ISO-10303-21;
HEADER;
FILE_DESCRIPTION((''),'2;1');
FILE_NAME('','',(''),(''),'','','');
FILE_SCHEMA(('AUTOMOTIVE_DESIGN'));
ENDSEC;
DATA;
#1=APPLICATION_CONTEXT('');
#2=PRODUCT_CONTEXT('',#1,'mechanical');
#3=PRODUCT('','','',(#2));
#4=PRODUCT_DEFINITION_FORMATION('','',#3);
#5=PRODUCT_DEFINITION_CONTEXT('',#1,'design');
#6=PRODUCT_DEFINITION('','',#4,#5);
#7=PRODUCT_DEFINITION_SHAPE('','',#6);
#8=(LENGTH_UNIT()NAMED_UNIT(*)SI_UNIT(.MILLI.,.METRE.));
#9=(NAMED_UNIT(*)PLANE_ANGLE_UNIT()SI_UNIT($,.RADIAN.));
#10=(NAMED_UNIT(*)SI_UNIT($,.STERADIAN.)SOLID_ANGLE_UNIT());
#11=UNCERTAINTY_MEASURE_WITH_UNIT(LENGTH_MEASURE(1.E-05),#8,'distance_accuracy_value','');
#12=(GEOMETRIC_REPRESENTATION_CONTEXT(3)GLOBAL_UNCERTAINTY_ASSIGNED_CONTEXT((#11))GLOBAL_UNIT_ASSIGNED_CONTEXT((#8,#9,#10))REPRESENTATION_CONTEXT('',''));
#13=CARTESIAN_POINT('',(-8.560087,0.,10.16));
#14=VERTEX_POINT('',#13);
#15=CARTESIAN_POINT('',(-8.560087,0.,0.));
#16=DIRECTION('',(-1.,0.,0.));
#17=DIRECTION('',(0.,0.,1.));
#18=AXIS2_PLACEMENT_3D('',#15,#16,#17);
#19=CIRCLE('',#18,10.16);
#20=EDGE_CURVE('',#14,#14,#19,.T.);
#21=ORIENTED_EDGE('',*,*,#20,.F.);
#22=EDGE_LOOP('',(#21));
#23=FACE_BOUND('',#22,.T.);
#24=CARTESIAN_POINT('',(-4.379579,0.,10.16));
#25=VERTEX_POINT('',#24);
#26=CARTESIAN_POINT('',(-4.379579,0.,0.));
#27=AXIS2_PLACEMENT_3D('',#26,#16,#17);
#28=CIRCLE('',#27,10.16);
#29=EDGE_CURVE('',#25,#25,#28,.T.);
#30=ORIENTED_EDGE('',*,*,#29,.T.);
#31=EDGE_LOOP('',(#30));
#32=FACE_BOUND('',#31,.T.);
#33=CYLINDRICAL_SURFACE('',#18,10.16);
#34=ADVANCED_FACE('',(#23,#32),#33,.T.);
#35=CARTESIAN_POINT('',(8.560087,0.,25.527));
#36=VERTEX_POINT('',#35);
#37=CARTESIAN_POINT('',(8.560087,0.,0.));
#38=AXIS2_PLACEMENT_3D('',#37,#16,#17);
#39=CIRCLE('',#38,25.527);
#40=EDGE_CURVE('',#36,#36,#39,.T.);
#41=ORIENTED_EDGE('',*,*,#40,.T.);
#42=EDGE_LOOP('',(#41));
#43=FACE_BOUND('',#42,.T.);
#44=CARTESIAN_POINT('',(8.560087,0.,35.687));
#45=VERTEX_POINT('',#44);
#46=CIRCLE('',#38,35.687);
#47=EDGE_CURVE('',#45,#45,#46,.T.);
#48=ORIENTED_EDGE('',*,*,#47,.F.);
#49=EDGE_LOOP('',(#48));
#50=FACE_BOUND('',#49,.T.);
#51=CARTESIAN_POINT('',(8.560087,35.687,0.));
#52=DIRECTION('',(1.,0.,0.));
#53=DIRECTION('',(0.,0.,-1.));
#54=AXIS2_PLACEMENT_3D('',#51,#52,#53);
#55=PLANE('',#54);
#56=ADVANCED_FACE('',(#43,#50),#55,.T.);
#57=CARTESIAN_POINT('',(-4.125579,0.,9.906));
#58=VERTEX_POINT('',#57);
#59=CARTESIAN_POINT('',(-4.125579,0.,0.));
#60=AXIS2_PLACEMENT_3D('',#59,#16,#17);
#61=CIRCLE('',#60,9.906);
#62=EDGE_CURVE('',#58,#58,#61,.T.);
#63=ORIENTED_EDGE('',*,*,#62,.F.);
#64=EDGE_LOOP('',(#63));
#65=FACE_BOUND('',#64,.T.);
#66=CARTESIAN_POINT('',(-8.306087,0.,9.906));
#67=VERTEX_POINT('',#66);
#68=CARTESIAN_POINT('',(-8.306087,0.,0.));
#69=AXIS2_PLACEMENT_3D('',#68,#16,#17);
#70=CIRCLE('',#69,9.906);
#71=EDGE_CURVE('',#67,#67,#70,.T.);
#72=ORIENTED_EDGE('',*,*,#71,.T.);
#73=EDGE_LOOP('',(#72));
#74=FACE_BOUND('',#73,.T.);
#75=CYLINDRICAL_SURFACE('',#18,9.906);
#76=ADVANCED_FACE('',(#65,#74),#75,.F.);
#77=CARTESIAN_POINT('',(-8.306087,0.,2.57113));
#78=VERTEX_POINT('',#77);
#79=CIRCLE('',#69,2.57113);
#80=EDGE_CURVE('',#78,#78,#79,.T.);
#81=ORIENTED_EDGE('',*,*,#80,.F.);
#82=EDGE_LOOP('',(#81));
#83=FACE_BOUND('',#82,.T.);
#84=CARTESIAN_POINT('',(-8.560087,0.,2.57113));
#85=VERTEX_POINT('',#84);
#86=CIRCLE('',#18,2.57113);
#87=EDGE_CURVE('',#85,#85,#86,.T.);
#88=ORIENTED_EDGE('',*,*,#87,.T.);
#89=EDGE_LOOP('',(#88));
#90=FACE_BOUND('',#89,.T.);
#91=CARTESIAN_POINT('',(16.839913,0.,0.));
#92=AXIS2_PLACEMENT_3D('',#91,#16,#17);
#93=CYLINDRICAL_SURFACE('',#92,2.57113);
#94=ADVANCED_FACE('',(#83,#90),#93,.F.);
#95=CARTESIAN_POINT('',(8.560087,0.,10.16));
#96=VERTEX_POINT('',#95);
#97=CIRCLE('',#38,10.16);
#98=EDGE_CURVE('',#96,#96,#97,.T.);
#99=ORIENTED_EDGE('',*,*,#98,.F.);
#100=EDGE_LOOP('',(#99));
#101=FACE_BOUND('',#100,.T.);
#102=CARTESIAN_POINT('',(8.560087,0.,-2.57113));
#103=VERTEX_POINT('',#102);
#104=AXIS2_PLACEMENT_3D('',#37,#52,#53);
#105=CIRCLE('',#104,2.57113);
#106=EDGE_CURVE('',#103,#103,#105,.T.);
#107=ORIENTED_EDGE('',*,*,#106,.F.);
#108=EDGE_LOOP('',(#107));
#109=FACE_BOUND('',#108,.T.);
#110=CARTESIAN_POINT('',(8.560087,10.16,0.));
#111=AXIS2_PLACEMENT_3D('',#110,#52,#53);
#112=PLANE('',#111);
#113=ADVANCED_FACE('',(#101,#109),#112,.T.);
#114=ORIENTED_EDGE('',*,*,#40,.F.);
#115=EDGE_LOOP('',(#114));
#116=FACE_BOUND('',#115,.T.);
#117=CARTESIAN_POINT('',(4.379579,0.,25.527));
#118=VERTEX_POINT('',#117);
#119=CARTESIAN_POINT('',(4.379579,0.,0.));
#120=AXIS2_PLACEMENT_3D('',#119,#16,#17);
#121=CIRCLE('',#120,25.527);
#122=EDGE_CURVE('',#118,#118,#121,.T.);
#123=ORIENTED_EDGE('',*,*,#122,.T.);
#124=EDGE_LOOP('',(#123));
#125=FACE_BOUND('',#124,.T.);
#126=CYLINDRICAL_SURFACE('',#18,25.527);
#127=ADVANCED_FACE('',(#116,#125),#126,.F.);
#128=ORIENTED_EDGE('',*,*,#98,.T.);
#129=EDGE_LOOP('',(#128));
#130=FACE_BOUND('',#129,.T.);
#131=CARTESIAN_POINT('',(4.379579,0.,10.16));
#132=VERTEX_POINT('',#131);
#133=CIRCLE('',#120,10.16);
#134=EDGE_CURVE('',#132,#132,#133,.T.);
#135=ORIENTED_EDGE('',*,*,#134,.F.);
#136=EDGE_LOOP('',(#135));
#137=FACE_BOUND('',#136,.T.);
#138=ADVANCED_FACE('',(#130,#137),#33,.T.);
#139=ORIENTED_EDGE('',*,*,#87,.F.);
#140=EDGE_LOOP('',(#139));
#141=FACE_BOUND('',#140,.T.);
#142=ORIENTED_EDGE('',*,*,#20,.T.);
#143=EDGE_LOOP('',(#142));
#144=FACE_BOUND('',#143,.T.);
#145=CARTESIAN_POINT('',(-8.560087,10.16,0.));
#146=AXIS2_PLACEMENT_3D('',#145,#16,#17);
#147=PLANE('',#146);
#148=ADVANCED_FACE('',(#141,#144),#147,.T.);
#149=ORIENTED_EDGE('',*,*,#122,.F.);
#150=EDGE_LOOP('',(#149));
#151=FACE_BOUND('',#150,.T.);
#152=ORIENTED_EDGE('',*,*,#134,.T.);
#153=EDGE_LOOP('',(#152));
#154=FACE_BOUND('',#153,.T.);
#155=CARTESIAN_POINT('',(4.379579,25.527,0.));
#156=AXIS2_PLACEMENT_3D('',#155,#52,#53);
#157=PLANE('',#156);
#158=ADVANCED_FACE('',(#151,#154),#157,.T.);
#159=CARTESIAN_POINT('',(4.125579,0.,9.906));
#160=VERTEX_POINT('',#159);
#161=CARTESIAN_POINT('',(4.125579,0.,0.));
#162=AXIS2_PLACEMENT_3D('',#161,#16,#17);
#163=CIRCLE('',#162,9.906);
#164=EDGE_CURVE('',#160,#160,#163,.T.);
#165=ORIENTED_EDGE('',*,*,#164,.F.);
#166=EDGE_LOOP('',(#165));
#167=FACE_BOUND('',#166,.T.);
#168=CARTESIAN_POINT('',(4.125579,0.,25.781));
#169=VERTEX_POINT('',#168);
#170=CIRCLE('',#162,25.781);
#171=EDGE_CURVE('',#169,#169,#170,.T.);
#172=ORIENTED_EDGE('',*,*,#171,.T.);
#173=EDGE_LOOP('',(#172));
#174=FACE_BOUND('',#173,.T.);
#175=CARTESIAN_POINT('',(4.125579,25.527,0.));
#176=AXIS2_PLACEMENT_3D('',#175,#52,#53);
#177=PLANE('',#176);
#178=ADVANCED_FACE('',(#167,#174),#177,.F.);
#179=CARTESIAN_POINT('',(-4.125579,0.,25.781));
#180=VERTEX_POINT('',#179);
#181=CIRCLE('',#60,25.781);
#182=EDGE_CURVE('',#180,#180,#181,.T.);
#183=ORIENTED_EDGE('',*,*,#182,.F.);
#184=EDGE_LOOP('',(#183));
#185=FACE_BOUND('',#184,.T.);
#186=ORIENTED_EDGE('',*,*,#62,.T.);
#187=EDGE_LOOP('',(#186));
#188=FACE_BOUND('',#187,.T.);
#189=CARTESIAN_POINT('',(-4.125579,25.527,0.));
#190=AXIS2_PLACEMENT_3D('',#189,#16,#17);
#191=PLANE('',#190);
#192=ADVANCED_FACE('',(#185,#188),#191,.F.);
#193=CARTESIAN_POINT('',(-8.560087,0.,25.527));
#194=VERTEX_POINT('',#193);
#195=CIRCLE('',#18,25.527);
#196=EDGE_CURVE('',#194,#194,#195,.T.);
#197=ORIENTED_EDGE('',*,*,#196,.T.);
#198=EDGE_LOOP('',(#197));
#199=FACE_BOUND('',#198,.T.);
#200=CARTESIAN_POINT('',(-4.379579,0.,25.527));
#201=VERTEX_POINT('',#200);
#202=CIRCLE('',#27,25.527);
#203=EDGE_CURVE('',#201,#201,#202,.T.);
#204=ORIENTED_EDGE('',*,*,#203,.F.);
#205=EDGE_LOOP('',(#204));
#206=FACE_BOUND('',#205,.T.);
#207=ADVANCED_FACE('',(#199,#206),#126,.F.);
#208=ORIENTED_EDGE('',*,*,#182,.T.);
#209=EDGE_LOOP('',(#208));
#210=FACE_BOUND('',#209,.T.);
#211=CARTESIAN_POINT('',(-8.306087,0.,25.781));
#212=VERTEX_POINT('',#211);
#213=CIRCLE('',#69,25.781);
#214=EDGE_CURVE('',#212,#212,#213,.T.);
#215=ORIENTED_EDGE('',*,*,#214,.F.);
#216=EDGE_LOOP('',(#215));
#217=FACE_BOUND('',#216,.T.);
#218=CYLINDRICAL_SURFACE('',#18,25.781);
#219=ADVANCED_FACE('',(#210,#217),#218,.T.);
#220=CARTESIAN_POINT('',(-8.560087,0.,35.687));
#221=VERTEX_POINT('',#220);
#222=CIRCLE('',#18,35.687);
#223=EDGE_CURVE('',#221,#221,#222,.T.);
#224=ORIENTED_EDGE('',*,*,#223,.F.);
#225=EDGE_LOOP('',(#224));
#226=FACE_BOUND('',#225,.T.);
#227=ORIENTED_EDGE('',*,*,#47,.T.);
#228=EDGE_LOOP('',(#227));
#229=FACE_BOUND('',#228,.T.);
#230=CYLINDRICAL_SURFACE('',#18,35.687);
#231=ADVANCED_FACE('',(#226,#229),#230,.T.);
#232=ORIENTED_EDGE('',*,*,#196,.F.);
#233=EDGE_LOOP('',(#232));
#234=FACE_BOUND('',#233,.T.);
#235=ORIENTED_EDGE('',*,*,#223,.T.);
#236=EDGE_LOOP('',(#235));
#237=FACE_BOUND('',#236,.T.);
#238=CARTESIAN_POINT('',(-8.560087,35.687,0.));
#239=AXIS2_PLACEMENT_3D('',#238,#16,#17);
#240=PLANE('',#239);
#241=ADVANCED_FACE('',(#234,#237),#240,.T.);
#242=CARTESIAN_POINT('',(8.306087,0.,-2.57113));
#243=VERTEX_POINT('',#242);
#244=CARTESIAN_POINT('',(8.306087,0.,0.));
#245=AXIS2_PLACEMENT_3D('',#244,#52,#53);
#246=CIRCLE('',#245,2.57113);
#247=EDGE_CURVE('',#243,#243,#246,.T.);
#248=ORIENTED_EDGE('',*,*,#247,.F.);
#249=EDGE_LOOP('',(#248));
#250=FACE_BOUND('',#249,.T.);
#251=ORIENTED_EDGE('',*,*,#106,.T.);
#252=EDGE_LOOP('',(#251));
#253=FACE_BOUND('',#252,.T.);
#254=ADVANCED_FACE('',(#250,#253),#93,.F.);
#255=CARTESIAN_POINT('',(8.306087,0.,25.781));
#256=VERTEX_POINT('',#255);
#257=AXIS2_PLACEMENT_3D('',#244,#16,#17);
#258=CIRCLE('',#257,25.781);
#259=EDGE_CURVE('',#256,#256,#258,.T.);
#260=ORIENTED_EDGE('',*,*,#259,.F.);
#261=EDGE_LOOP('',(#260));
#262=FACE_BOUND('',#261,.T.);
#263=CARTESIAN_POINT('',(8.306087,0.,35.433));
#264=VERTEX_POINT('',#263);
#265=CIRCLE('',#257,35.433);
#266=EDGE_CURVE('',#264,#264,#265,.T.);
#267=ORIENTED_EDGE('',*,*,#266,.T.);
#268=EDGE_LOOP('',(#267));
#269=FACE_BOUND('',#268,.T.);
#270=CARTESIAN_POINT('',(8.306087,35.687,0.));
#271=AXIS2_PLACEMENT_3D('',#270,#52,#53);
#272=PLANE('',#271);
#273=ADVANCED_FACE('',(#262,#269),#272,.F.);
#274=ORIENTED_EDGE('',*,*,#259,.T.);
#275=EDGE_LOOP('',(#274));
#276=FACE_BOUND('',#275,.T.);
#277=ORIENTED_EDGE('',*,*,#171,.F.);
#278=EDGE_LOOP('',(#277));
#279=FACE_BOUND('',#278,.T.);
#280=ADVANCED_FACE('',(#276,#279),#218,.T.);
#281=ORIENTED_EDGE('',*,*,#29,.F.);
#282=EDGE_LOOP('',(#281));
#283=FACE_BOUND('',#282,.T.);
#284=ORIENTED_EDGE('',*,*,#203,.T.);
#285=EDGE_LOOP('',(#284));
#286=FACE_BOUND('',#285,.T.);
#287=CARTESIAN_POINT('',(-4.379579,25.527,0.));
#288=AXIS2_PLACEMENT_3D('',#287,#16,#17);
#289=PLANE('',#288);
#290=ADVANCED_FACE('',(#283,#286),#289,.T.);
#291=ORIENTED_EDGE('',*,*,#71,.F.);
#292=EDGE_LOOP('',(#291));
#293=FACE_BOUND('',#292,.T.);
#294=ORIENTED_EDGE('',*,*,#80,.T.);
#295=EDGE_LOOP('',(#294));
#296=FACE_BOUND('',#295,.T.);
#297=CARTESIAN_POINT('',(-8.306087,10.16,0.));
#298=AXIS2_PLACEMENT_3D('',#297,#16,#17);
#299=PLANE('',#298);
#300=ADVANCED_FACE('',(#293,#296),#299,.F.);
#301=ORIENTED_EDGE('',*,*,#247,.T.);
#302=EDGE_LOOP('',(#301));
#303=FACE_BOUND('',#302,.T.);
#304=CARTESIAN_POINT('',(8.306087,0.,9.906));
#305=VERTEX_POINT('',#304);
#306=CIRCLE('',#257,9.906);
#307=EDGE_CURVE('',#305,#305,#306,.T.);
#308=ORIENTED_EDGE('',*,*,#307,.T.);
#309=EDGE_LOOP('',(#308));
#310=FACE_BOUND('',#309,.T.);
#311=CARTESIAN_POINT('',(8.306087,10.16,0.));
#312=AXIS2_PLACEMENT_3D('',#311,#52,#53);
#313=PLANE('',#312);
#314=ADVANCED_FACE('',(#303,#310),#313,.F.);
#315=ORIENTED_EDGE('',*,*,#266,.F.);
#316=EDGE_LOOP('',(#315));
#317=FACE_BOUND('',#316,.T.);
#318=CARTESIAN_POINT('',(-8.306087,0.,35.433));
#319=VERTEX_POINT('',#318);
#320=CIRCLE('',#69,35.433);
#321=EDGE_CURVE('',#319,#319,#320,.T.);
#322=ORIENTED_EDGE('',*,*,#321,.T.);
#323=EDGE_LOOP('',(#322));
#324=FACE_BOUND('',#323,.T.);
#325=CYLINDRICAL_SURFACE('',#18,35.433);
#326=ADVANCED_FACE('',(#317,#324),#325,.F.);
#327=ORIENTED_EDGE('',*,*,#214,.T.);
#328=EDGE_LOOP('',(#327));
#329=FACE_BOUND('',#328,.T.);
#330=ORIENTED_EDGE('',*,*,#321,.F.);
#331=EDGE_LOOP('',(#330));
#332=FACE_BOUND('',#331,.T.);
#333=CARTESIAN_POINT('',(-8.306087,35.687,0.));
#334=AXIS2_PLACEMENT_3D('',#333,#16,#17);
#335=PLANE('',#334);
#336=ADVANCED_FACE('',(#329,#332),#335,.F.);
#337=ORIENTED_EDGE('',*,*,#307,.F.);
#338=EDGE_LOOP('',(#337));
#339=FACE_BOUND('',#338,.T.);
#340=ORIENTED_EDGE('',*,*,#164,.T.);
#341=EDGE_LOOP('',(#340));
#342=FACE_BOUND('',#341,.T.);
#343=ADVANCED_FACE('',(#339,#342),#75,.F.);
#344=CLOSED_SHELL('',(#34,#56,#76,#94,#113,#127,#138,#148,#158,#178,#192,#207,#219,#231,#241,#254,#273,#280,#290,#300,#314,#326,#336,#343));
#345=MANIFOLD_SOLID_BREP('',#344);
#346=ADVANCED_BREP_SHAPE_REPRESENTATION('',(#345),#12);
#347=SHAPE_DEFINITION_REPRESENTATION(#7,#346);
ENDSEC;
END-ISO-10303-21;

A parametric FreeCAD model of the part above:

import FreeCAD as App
import Part
import Sketcher
from FreeCAD import Vector
Q = App.Units.Quantity

doc = App.newDocument("Part")
params = doc.addObject("Spreadsheet::Sheet", "Params")
for row, (alias, value) in enumerate([
    ("sketch1_height", "0.4 in"),
    ("sketch1_height2", "0.01 in"),
    ("sketch1_height3", "0.38 in"),
    ("sketch1_height4", "0.605 in"),
    ("sketch1_height5", "0.625 in"),
    ("revolution_angle", "360 deg"),
    ("pocket1_length", "1 in"),
], start=1):
    params.set(f"A{row}", alias)
    params.set(f"B{row}", "=" + value)
    params.setAlias(f"B{row}", alias)

body = doc.addObject("PartDesign::Body", "Body")

# Sketch on XY plane
sketch1 = doc.addObject("Sketcher::SketchObject", "Sketch")
body.addObject(sketch1)
sketch1.AttachmentSupport = (doc.XY_Plane, [""])
sketch1.MapMode = "FlatFace"
sketch1.addGeometry([
    Part.LineSegment(Vector(0.5, 0, 0), Vector(8.56, 0, 0)),  # 0
    Part.LineSegment(Vector(8.56, 0, 0), Vector(8.56, 10.16, 0)),  # 1
    Part.LineSegment(Vector(8.56, 10.16, 0), Vector(4.38, 10.16, 0)),  # 2
    Part.LineSegment(Vector(4.38, 10.16, 0), Vector(4.38, 25.53, 0)),  # 3
    Part.LineSegment(Vector(4.38, 25.53, 0), Vector(8.56, 25.53, 0)),  # 4
    Part.LineSegment(Vector(8.56, 25.53, 0), Vector(8.56, 35.69, 0)),  # 5
    Part.LineSegment(Vector(8.56, 35.69, 0), Vector(-8.56, 35.69, 0)),  # 6
    Part.LineSegment(Vector(-8.56, 35.69, 0), Vector(-8.56, 25.53, 0)),  # 7
    Part.LineSegment(Vector(-8.56, 25.53, 0), Vector(-4.38, 25.53, 0)),  # 8
    Part.LineSegment(Vector(-4.38, 25.53, 0), Vector(-4.38, 10.16, 0)),  # 9
    Part.LineSegment(Vector(-4.38, 10.16, 0), Vector(-8.56, 10.16, 0)),  # 10
    Part.LineSegment(Vector(-8.56, 10.16, 0), Vector(-8.56, 0, 0)),  # 11
    Part.LineSegment(Vector(-8.56, 0, 0), Vector(-0.5, 0, 0)),  # 12
    Part.LineSegment(Vector(-0.5, 0, 0), Vector(-0.5, 0.25, 0)),  # 13
    Part.LineSegment(Vector(-0.5, 0.25, 0), Vector(-8.31, 0.25, 0)),  # 14
    Part.LineSegment(Vector(-8.31, 0.25, 0), Vector(-8.31, 9.91, 0)),  # 15
    Part.LineSegment(Vector(-8.31, 9.91, 0), Vector(-4.13, 9.91, 0)),  # 16
    Part.LineSegment(Vector(-4.13, 9.91, 0), Vector(-4.13, 25.78, 0)),  # 17
    Part.LineSegment(Vector(-4.13, 25.78, 0), Vector(-8.31, 25.78, 0)),  # 18
    Part.LineSegment(Vector(-8.31, 25.78, 0), Vector(-8.31, 35.43, 0)),  # 19
    Part.LineSegment(Vector(-8.31, 35.43, 0), Vector(8.31, 35.43, 0)),  # 20
    Part.LineSegment(Vector(8.31, 35.43, 0), Vector(8.31, 25.78, 0)),  # 21
    Part.LineSegment(Vector(8.31, 25.78, 0), Vector(4.13, 25.78, 0)),  # 22
    Part.LineSegment(Vector(4.13, 25.78, 0), Vector(4.13, 9.91, 0)),  # 23
    Part.LineSegment(Vector(4.13, 9.91, 0), Vector(8.31, 9.91, 0)),  # 24
    Part.LineSegment(Vector(8.31, 9.91, 0), Vector(8.31, 0.25, 0)),  # 25
    Part.LineSegment(Vector(8.31, 0.25, 0), Vector(0.5, 0.25, 0)),  # 26
    Part.LineSegment(Vector(0.5, 0.25, 0), Vector(0.5, 0, 0)),  # 27
], False)
sketch1.addConstraint([
    Sketcher.Constraint("Coincident", 0, 2, 1, 1),
    Sketcher.Constraint("Coincident", 1, 2, 2, 1),
    Sketcher.Constraint("Coincident", 2, 2, 3, 1),
    Sketcher.Constraint("Coincident", 3, 2, 4, 1),
    Sketcher.Constraint("Coincident", 4, 2, 5, 1),
    Sketcher.Constraint("Coincident", 5, 2, 6, 1),
    Sketcher.Constraint("Coincident", 6, 2, 7, 1),
    Sketcher.Constraint("Coincident", 7, 2, 8, 1),
    Sketcher.Constraint("Coincident", 8, 2, 9, 1),
    Sketcher.Constraint("Coincident", 9, 2, 10, 1),
    Sketcher.Constraint("Coincident", 10, 2, 11, 1),
    Sketcher.Constraint("Coincident", 11, 2, 12, 1),
    Sketcher.Constraint("Coincident", 12, 2, 13, 1),
    Sketcher.Constraint("Coincident", 13, 2, 14, 1),
    Sketcher.Constraint("Coincident", 14, 2, 15, 1),
    Sketcher.Constraint("Coincident", 15, 2, 16, 1),
    Sketcher.Constraint("Coincident", 16, 2, 17, 1),
    Sketcher.Constraint("Coincident", 17, 2, 18, 1),
    Sketcher.Constraint("Coincident", 18, 2, 19, 1),
    Sketcher.Constraint("Coincident", 19, 2, 20, 1),
    Sketcher.Constraint("Coincident", 20, 2, 21, 1),
    Sketcher.Constraint("Coincident", 21, 2, 22, 1),
    Sketcher.Constraint("Coincident", 22, 2, 23, 1),
    Sketcher.Constraint("Coincident", 23, 2, 24, 1),
    Sketcher.Constraint("Coincident", 24, 2, 25, 1),
    Sketcher.Constraint("Coincident", 25, 2, 26, 1),
    Sketcher.Constraint("Coincident", 26, 2, 27, 1),
    Sketcher.Constraint("Coincident", 27, 2, 0, 1),
    Sketcher.Constraint("Horizontal", 0),
    Sketcher.Constraint("Vertical", 1),
    Sketcher.Constraint("Horizontal", 2),
    Sketcher.Constraint("Vertical", 3),
    Sketcher.Constraint("Horizontal", 4),
    Sketcher.Constraint("Vertical", 5),
    Sketcher.Constraint("Horizontal", 6),
    Sketcher.Constraint("Vertical", 7),
    Sketcher.Constraint("Horizontal", 8),
    Sketcher.Constraint("Vertical", 9),
    Sketcher.Constraint("Horizontal", 10),
    Sketcher.Constraint("Vertical", 11),
    Sketcher.Constraint("Horizontal", 12),
    Sketcher.Constraint("Vertical", 13),
    Sketcher.Constraint("Horizontal", 14),
    Sketcher.Constraint("Vertical", 15),
    Sketcher.Constraint("Horizontal", 16),
    Sketcher.Constraint("Vertical", 17),
    Sketcher.Constraint("Horizontal", 18),
    Sketcher.Constraint("Vertical", 19),
    Sketcher.Constraint("Horizontal", 20),
    Sketcher.Constraint("Vertical", 21),
    Sketcher.Constraint("Horizontal", 22),
    Sketcher.Constraint("Vertical", 23),
    Sketcher.Constraint("Horizontal", 24),
    Sketcher.Constraint("Vertical", 25),
    Sketcher.Constraint("Horizontal", 26),
    Sketcher.Constraint("Vertical", 27),
    Sketcher.Constraint("Symmetric", 0, 2, 11, 2, -1, 1),
    Sketcher.Constraint("Symmetric", 4, 2, 7, 2, -2),
    Sketcher.Constraint("Symmetric", 2, 2, 9, 2, -2),
    Sketcher.Constraint("Symmetric", 18, 2, 21, 2, -2),
    Sketcher.Constraint("Symmetric", 16, 2, 23, 2, -2),
    Sketcher.Constraint("Symmetric", 14, 2, 25, 2, -2),
    Sketcher.Constraint("Symmetric", 12, 2, 27, 2, -2),
    Sketcher.Constraint("Vertical", 1, 2, 4, 2),
    Sketcher.Constraint("Vertical", 15, 2, 18, 2),
    Sketcher.Constraint("Equal", 10, 16),
    Sketcher.Constraint("Equal", 1, 5),
    Sketcher.Constraint("Equal", 15, 19),
    Sketcher.Constraint("DistanceY", 1, 1, 1, 2, Q("0.4 in")),
    Sketcher.Constraint("DistanceY", 13, 1, 13, 2, Q("0.01 in")),
    Sketcher.Constraint("DistanceY", 15, 1, 15, 2, Q("0.38 in")),
    Sketcher.Constraint("DistanceY", 3, 1, 3, 2, Q("0.605 in")),
    Sketcher.Constraint("DistanceY", 17, 1, 17, 2, Q("0.625 in")),
    Sketcher.Constraint("DistanceX", 11, 2, 14, 2, Q("0.01 in")),
    Sketcher.Constraint("DistanceX", 9, 2, 12, 2, Q("3.8819 mm")),
    Sketcher.Constraint("DistanceX", 0, 1, 0, 2, Q("8.062407 mm")),
    Sketcher.Constraint("DistanceX", 6, 2, 6, 1, Q("17.120173 mm")),
])
sketch1.setExpression("Constraints[68]", "Params.sketch1_height")
sketch1.setExpression("Constraints[69]", "Params.sketch1_height2")
sketch1.setExpression("Constraints[70]", "Params.sketch1_height3")
sketch1.setExpression("Constraints[71]", "Params.sketch1_height4")
sketch1.setExpression("Constraints[72]", "Params.sketch1_height5")
revolution = doc.addObject("PartDesign::Revolution", "Revolution")
body.addObject(revolution)
revolution.Profile = sketch1
revolution.ReferenceAxis = (sketch1, ["H_Axis"])
revolution.setExpression("Angle", "Params.revolution_angle")

# Sketch on YZ plane
sketch2 = doc.addObject("Sketcher::SketchObject", "Sketch001")
body.addObject(sketch2)
sketch2.AttachmentSupport = (doc.YZ_Plane, [""])
sketch2.MapMode = "FlatFace"
sketch2.AttachmentOffset = App.Placement(Vector(0, 0, -8.560087), App.Rotation())
sketch2.addGeometry(Part.Circle(Vector(0, 0, 0), Vector(0, 0, 1), 2.6), False)
sketch2.addConstraint([
    Sketcher.Constraint("Coincident", 0, 3, -1, 1),
    Sketcher.Constraint("Diameter", 0, Q("5.14226 mm")),
])
pocket1 = doc.addObject("PartDesign::Pocket", "Pocket")
body.addObject(pocket1)
pocket1.Profile = sketch2
pocket1.setExpression("Length", "Params.pocket1_length")
pocket1.Reversed = True

doc.recompute()
